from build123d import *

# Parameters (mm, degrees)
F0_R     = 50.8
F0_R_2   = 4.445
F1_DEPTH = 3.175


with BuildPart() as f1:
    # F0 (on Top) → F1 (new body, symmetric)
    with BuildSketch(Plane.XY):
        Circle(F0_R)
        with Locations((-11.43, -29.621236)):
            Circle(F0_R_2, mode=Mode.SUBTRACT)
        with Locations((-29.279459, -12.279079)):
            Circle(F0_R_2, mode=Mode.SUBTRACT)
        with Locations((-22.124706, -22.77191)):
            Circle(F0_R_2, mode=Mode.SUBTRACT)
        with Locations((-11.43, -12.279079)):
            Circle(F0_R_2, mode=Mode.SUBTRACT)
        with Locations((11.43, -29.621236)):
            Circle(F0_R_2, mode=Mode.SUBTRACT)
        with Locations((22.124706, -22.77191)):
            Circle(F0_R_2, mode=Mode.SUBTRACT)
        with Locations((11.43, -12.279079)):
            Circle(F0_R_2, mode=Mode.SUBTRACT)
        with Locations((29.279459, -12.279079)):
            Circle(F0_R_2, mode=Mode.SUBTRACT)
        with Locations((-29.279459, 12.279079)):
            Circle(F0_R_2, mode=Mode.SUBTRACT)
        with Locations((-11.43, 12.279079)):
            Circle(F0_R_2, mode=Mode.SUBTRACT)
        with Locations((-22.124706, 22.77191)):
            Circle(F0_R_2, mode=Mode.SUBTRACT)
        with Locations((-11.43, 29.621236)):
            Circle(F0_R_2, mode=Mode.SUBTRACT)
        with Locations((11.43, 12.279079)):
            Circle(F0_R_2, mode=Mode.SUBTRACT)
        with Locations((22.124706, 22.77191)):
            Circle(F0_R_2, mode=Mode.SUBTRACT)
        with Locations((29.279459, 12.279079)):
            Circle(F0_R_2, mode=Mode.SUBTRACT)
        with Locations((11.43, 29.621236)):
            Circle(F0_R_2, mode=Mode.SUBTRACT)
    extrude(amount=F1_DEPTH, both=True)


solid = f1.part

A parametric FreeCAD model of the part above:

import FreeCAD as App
import Part
import Sketcher

V = App.Vector
Q = App.Units.Quantity

doc = App.newDocument("Part")
body = doc.addObject("PartDesign::Body", "Body")

sketch1 = doc.addObject("Sketcher::SketchObject", "Sketch")
body.addObject(sketch1)
sketch1.AttachmentSupport = (doc.XY_Plane, [""])
sketch1.MapMode = "FlatFace"
sketch1.addGeometry([
    Part.Circle(V(0, 0, 0), V(0, 0, 1), 50.8),
    Part.Circle(V(-22.1, -22.8, 0), V(0, 0, 1), 4.4),
    Part.Circle(V(-11.4, -29.6, 0), V(0, 0, 1), 4.4),
    Part.Circle(V(-29.3, -12.3, 0), V(0, 0, 1), 4.4),
    Part.Circle(V(-11.4, -12.3, 0), V(0, 0, 1), 4.4),
    Part.Circle(V(11.4, -29.6, 0), V(0, 0, 1), 4.4),
    Part.Circle(V(22.1, -22.8, 0), V(0, 0, 1), 4.4),
    Part.Circle(V(11.4, -12.3, 0), V(0, 0, 1), 4.4),
    Part.Circle(V(29.3, -12.3, 0), V(0, 0, 1), 4.4),
    Part.Circle(V(-29.3, 12.3, 0), V(0, 0, 1), 4.4),
    Part.Circle(V(-11.4, 12.3, 0), V(0, 0, 1), 4.4),
    Part.Circle(V(-22.1, 22.8, 0), V(0, 0, 1), 4.4),
    Part.Circle(V(-11.4, 29.6, 0), V(0, 0, 1), 4.4),
    Part.Circle(V(11.4, 12.3, 0), V(0, 0, 1), 4.4),
    Part.Circle(V(29.3, 12.3, 0), V(0, 0, 1), 4.4),
    Part.Circle(V(11.4, 29.6, 0), V(0, 0, 1), 4.4),
    Part.Circle(V(22.1, 22.8, 0), V(0, 0, 1), 4.4),
], False)
sketch1.addConstraint([
    Sketcher.Constraint("Coincident", 0, 3, -1, 1),
    Sketcher.Constraint("Equal", 1, 2),
    Sketcher.Constraint("Equal", 2, 3),
    Sketcher.Constraint("Equal", 3, 4),
    Sketcher.Constraint("Equal", 4, 5),
    Sketcher.Constraint("Equal", 5, 6),
    Sketcher.Constraint("Equal", 6, 7),
    Sketcher.Constraint("Equal", 7, 8),
    Sketcher.Constraint("Equal", 8, 9),
    Sketcher.Constraint("Equal", 9, 10),
    Sketcher.Constraint("Equal", 10, 11),
    Sketcher.Constraint("Equal", 11, 12),
    Sketcher.Constraint("Equal", 12, 13),
    Sketcher.Constraint("Equal", 13, 14),
    Sketcher.Constraint("Equal", 14, 15),
    Sketcher.Constraint("Equal", 15, 16),
    Sketcher.Constraint("Symmetric", 8, 3, 9, 3, -1, 1),
    Sketcher.Constraint("Symmetric", 7, 3, 10, 3, -1, 1),
    Sketcher.Constraint("Symmetric", 6, 3, 11, 3, -1, 1),
    Sketcher.Constraint("Symmetric", 5, 3, 12, 3, -1, 1),
    Sketcher.Constraint("Symmetric", 4, 3, 13, 3, -1, 1),
    Sketcher.Constraint("Symmetric", 3, 3, 14, 3, -1, 1),
    Sketcher.Constraint("Symmetric", 2, 3, 15, 3, -1, 1),
    Sketcher.Constraint("Symmetric", 1, 3, 16, 3, -1, 1),
    Sketcher.Constraint("Symmetric", 2, 3, 5, 3, -2),
    Sketcher.Constraint("Symmetric", 1, 3, 6, 3, -2),
    Sketcher.Constraint("Symmetric", 4, 3, 7, 3, -2),
    Sketcher.Constraint("Symmetric", 3, 3, 8, 3, -2),
    Sketcher.Constraint("Horizontal", 3, 3, 4, 3),
    Sketcher.Constraint("Vertical", 2, 3, 4, 3),
    Sketcher.Constraint("Diameter", 0, Q("4 in")),
    Sketcher.Constraint("Diameter", 1, Q("0.35 in")),
    Sketcher.Constraint("DistanceX", 2, 3, 5, 3, Q("0.9 in")),
    Sketcher.Constraint("DistanceY", 1, 3, -1, 1, Q("22.77191 mm")),
    Sketcher.Constraint("DistanceX", 3, 3, -1, 1, Q("29.279459 mm")),
    Sketcher.Constraint("DistanceY", 3, 3, -1, 1, Q("12.279079 mm")),
    Sketcher.Constraint("DistanceX", 1, 3, -1, 1, Q("22.124706 mm")),
    Sketcher.Constraint("DistanceY", 2, 3, -1, 1, Q("29.621236 mm")),
])
pad1 = doc.addObject("PartDesign::Pad", "Pad")
body.addObject(pad1)
pad1.Profile = sketch1
pad1.Length = Q("0.25 in")
pad1.Midplane = True

doc.recompute()
